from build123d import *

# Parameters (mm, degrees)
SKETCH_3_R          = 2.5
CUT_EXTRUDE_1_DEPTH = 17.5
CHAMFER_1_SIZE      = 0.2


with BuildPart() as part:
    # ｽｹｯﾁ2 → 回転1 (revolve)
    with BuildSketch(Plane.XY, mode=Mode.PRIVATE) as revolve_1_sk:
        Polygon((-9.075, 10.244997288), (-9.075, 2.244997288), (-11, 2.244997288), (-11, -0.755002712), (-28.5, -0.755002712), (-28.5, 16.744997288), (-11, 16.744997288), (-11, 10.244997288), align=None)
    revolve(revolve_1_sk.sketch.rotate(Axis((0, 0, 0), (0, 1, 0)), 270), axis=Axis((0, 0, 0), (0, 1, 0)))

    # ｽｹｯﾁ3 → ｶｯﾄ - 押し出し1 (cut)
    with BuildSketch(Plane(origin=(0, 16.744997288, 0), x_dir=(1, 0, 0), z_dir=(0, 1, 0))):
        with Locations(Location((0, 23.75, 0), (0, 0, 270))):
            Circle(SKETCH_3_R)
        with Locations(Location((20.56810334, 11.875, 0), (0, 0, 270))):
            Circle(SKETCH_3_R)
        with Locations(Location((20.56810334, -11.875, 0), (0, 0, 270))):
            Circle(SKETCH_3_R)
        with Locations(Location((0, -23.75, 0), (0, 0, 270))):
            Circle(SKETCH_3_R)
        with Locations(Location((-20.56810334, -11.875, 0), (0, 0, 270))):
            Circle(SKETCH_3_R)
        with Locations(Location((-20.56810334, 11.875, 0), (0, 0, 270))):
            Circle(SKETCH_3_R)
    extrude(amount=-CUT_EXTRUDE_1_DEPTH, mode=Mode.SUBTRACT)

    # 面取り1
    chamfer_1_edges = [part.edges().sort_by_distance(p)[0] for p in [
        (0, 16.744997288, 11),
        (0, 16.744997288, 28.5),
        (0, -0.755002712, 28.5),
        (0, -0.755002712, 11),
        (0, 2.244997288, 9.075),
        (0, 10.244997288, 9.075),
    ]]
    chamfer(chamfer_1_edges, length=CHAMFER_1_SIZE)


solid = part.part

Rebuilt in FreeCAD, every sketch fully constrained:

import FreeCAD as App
import Part
import Sketcher

V = App.Vector
Q = App.Units.Quantity


def edges_at(feature, points):
    """Names of the edges that pass closest to the given points."""
    edges = feature.Shape.Edges
    near = lambda p: min(range(len(edges)), key=lambda i: edges[i].distToShape(Part.Vertex(*p))[0])
    return sorted({f"Edge{near(p) + 1}" for p in points})


def add_polygon(sketch, points):
    """Adds a closed chain of lines whose ends are joined by coincident constraints."""
    first, n = sketch.GeometryCount, len(points)
    for a, b in zip(points, points[1:] + points[:1]):
        sketch.addGeometry(Part.LineSegment(App.Vector(*a, 0), App.Vector(*b, 0)), False)
    for i in range(n):
        sketch.addConstraint(Sketcher.Constraint("Coincident", first + i, 2, first + (i + 1) % n, 1))

doc = App.newDocument("Part")
body = doc.addObject("PartDesign::Body", "Body")

sketch1 = doc.addObject("Sketcher::SketchObject", "Sketch")
body.addObject(sketch1)
sketch1.AttachmentSupport = (doc.XY_Plane, [""])
sketch1.MapMode = "FlatFace"
add_polygon(sketch1, [(-9.1, 2.2), (-9.1, 10.2), (-11, 10.2), (-11, 16.7), (-28.5, 16.7), (-28.5, -0.8), (-11, -0.8), (-11, 2.2)])
sketch1.addConstraint([
    Sketcher.Constraint("Vertical", 0),
    Sketcher.Constraint("Horizontal", 1),
    Sketcher.Constraint("Vertical", 2),
    Sketcher.Constraint("Horizontal", 3),
    Sketcher.Constraint("Vertical", 4),
    Sketcher.Constraint("Horizontal", 5),
    Sketcher.Constraint("Vertical", 6),
    Sketcher.Constraint("Horizontal", 7),
    Sketcher.Constraint("Vertical", 2, 2, 5, 2),
    Sketcher.Constraint("Equal", 5, 4),
    Sketcher.Constraint("DistanceY", 0, 1, 0, 2, Q("8 mm")),
    Sketcher.Constraint("DistanceY", 6, 1, 6, 2, Q("3 mm")),
    Sketcher.Constraint("DistanceX", 3, 2, 3, 1, Q("17.5 mm")),
    Sketcher.Constraint("DistanceX", 1, 2, -1, 1, Q("11 mm")),
    Sketcher.Constraint("DistanceX", 1, 2, 1, 1, Q("1.925 mm")),
    Sketcher.Constraint("DistanceY", -1, 1, 0, 2, Q("10.244997 mm")),
])
revolution = doc.addObject("PartDesign::Revolution", "Revolution")
body.addObject(revolution)
revolution.Profile = sketch1
revolution.ReferenceAxis = (sketch1, ["V_Axis"])
revolution.Angle = 360

sketch2 = doc.addObject("Sketcher::SketchObject", "Sketch001")
body.addObject(sketch2)
sketch2.AttachmentSupport = (doc.XZ_Plane, [""])
sketch2.MapMode = "FlatFace"
sketch2.AttachmentOffset = App.Placement(V(0, 0, -16.744997), App.Rotation())
sketch2.addGeometry([
    Part.Circle(V(0, -23.8, 0), V(0, 0, 1), 2.5),
    Part.Circle(V(20.6, -11.9, 0), V(0, 0, 1), 2.5),
    Part.Circle(V(20.6, 11.9, 0), V(0, 0, 1), 2.5),
    Part.Circle(V(0, 23.8, 0), V(0, 0, 1), 2.5),
    Part.Circle(V(-20.6, 11.9, 0), V(0, 0, 1), 2.5),
    Part.Circle(V(-20.6, -11.9, 0), V(0, 0, 1), 2.5),
], False)
sketch2.addConstraint([
    Sketcher.Constraint("Equal", 0, 1),
    Sketcher.Constraint("Equal", 1, 2),
    Sketcher.Constraint("Equal", 2, 3),
    Sketcher.Constraint("Equal", 3, 4),
    Sketcher.Constraint("Equal", 4, 5),
    Sketcher.Constraint("Symmetric", 0, 3, 3, 3, -1, 1),
    Sketcher.Constraint("Symmetric", 1, 3, 4, 3, -1, 1),
    Sketcher.Constraint("Symmetric", 2, 3, 5, 3, -1, 1),
    Sketcher.Constraint("Symmetric", 2, 3, 4, 3, -2),
    Sketcher.Constraint("PointOnObject", 0, 3, -2),
    Sketcher.Constraint("Diameter", 0, Q("5 mm")),
    Sketcher.Constraint("DistanceY", 0, 3, 3, 3, Q("47.5 mm")),
    Sketcher.Constraint("DistanceY", 1, 3, 2, 3, Q("23.75 mm")),
    Sketcher.Constraint("DistanceX", -1, 1, 1, 3, Q("20.568103 mm")),
])
pocket1 = doc.addObject("PartDesign::Pocket", "Pocket")
body.addObject(pocket1)
pocket1.Profile = sketch2
pocket1.Length = 17.5
pocket1.Reversed = True
doc.recompute()

chamfer = doc.addObject("PartDesign::Chamfer", "Chamfer")
body.addObject(chamfer)
chamfer.Base = (pocket1, edges_at(pocket1, [
    (0, 16.745, 11),
    (0, 16.745, 28.5),
    (0, -0.755, 28.5),
    (0, -0.755, 11),
    (0, 2.245, 9.075),
    (0, 10.245, 9.075),
]))
chamfer.Size = 0.2

doc.recompute()
